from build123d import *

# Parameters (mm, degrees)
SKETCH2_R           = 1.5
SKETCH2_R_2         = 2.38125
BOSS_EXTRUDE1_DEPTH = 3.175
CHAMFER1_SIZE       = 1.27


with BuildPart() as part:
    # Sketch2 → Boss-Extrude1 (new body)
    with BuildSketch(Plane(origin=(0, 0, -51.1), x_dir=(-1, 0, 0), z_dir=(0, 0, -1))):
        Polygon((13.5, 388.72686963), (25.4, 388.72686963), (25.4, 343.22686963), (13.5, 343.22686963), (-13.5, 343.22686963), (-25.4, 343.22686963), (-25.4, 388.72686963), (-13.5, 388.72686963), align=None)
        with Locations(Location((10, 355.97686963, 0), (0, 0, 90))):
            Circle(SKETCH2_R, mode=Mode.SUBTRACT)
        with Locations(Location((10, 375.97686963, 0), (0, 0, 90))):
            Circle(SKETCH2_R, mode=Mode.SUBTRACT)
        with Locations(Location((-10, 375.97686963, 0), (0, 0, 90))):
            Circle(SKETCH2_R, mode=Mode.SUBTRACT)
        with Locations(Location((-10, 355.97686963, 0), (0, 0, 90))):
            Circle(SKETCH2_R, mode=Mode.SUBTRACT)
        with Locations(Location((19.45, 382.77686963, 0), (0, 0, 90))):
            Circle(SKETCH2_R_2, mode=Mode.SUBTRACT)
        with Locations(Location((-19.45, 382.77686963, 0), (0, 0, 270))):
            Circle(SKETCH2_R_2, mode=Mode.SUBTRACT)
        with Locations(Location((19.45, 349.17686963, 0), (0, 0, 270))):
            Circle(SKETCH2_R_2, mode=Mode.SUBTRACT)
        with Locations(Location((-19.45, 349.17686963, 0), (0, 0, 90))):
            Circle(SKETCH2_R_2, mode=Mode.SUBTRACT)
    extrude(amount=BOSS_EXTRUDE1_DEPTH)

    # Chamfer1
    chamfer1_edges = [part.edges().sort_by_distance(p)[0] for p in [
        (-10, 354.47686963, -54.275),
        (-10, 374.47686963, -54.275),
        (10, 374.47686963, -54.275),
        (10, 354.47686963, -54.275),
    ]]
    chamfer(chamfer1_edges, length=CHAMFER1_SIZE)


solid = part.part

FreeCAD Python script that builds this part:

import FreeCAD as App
import Part
import Sketcher
from FreeCAD import Vector
Q = App.Units.Quantity


def edges_at(feature, points):
    """Names of the edges that pass closest to the given points."""
    edges = feature.Shape.Edges
    near = lambda p: min(range(len(edges)), key=lambda i: edges[i].distToShape(Part.Vertex(*p))[0])
    return sorted({f"Edge{near(p) + 1}" for p in points})

doc = App.newDocument("Part")
body = doc.addObject("PartDesign::Body", "Body")

# Sketch on XY plane
sketch1 = body.newObject("Sketcher::SketchObject", "Sketch")
sketch1.AttachmentSupport = (doc.getObject("XY_Plane"), [""])
sketch1.MapMode = "FlatFace"
sketch1.AttachmentOffset = App.Placement(Vector(0, 0, -51.1), App.Rotation())
sketch1.addGeometry([
    Part.LineSegment(Vector(-25.4, 388.7, 0), Vector(25.4, 388.7, 0)),  # 0
    Part.LineSegment(Vector(25.4, 388.7, 0), Vector(25.4, 343.2, 0)),  # 1
    Part.LineSegment(Vector(25.4, 343.2, 0), Vector(-25.4, 343.2, 0)),  # 2
    Part.LineSegment(Vector(-25.4, 343.2, 0), Vector(-25.4, 388.7, 0)),  # 3
    Part.Circle(Vector(-19.4, 349.2, 0), Vector(0, 0, 1), 2.4),  # 4
    Part.Circle(Vector(-10, 356, 0), Vector(0, 0, 1), 1.5),  # 5
    Part.Circle(Vector(10, 356, 0), Vector(0, 0, 1), 1.5),  # 6
    Part.Circle(Vector(19.4, 349.2, 0), Vector(0, 0, 1), 2.4),  # 7
    Part.Circle(Vector(-19.4, 382.8, 0), Vector(0, 0, 1), 2.4),  # 8
    Part.Circle(Vector(-10, 376, 0), Vector(0, 0, 1), 1.5),  # 9
    Part.Circle(Vector(10, 376, 0), Vector(0, 0, 1), 1.5),  # 10
    Part.Circle(Vector(19.4, 382.8, 0), Vector(0, 0, 1), 2.4),  # 11
], False)
sketch1.addConstraint([
    Sketcher.Constraint("Coincident", 0, 2, 1, 1),
    Sketcher.Constraint("Coincident", 1, 2, 2, 1),
    Sketcher.Constraint("Coincident", 2, 2, 3, 1),
    Sketcher.Constraint("Coincident", 3, 2, 0, 1),
    Sketcher.Constraint("Horizontal", 0),
    Sketcher.Constraint("Vertical", 1),
    Sketcher.Constraint("Horizontal", 2),
    Sketcher.Constraint("Vertical", 3),
    Sketcher.Constraint("Equal", 5, 6),
    Sketcher.Constraint("Equal", 4, 7),
    Sketcher.Constraint("Equal", 7, 8),
    Sketcher.Constraint("Equal", 6, 9),
    Sketcher.Constraint("Equal", 9, 10),
    Sketcher.Constraint("Equal", 8, 11),
    Sketcher.Constraint("Symmetric", 5, 3, 6, 3, -2),
    Sketcher.Constraint("Symmetric", 4, 3, 7, 3, -2),
    Sketcher.Constraint("Symmetric", 9, 3, 10, 3, -2),
    Sketcher.Constraint("Symmetric", 8, 3, 11, 3, -2),
    Sketcher.Constraint("Vertical", 4, 3, 8, 3),
    Sketcher.Constraint("Vertical", 5, 3, 9, 3),
    Sketcher.Constraint("DistanceX", 0, 1, 0, 2, Q("2 in")),
    Sketcher.Constraint("Diameter", 4, Q("0.1875 in")),
    Sketcher.Constraint("DistanceX", -1, 1, 0, 2, Q("1 in")),
    Sketcher.Constraint("Diameter", 5, Q("3 mm")),
    Sketcher.Constraint("DistanceY", 1, 2, 1, 1, Q("45.5 mm")),
    Sketcher.Constraint("DistanceX", 4, 3, -1, 1, Q("19.45 mm")),
    Sketcher.Constraint("DistanceX", 5, 3, -1, 1, Q("10 mm")),
    Sketcher.Constraint("DistanceY", 4, 3, 5, 3, Q("6.8 mm")),
    Sketcher.Constraint("DistanceY", 5, 3, 8, 3, Q("26.8 mm")),
    Sketcher.Constraint("DistanceY", 9, 3, 8, 3, Q("6.8 mm")),
    Sketcher.Constraint("DistanceY", 11, 3, 0, 2, Q("5.95 mm")),
    Sketcher.Constraint("DistanceY", -1, 1, 4, 3, Q("349.17687 mm")),
])
pad1 = body.newObject("PartDesign::Pad", "Pad")
pad1.Profile = sketch1
pad1.Length = Q("0.125 in")
pad1.Reversed = True
doc.recompute()

chamfer = body.newObject("PartDesign::Chamfer", "Chamfer")
chamfer.Base = (pad1, edges_at(pad1, [
    (-10, 354.477, -54.275),
    (-10, 374.477, -54.275),
    (10, 374.477, -54.275),
    (10, 354.477, -54.275),
]))
chamfer.Size = Q("0.05 in")

doc.recompute()
